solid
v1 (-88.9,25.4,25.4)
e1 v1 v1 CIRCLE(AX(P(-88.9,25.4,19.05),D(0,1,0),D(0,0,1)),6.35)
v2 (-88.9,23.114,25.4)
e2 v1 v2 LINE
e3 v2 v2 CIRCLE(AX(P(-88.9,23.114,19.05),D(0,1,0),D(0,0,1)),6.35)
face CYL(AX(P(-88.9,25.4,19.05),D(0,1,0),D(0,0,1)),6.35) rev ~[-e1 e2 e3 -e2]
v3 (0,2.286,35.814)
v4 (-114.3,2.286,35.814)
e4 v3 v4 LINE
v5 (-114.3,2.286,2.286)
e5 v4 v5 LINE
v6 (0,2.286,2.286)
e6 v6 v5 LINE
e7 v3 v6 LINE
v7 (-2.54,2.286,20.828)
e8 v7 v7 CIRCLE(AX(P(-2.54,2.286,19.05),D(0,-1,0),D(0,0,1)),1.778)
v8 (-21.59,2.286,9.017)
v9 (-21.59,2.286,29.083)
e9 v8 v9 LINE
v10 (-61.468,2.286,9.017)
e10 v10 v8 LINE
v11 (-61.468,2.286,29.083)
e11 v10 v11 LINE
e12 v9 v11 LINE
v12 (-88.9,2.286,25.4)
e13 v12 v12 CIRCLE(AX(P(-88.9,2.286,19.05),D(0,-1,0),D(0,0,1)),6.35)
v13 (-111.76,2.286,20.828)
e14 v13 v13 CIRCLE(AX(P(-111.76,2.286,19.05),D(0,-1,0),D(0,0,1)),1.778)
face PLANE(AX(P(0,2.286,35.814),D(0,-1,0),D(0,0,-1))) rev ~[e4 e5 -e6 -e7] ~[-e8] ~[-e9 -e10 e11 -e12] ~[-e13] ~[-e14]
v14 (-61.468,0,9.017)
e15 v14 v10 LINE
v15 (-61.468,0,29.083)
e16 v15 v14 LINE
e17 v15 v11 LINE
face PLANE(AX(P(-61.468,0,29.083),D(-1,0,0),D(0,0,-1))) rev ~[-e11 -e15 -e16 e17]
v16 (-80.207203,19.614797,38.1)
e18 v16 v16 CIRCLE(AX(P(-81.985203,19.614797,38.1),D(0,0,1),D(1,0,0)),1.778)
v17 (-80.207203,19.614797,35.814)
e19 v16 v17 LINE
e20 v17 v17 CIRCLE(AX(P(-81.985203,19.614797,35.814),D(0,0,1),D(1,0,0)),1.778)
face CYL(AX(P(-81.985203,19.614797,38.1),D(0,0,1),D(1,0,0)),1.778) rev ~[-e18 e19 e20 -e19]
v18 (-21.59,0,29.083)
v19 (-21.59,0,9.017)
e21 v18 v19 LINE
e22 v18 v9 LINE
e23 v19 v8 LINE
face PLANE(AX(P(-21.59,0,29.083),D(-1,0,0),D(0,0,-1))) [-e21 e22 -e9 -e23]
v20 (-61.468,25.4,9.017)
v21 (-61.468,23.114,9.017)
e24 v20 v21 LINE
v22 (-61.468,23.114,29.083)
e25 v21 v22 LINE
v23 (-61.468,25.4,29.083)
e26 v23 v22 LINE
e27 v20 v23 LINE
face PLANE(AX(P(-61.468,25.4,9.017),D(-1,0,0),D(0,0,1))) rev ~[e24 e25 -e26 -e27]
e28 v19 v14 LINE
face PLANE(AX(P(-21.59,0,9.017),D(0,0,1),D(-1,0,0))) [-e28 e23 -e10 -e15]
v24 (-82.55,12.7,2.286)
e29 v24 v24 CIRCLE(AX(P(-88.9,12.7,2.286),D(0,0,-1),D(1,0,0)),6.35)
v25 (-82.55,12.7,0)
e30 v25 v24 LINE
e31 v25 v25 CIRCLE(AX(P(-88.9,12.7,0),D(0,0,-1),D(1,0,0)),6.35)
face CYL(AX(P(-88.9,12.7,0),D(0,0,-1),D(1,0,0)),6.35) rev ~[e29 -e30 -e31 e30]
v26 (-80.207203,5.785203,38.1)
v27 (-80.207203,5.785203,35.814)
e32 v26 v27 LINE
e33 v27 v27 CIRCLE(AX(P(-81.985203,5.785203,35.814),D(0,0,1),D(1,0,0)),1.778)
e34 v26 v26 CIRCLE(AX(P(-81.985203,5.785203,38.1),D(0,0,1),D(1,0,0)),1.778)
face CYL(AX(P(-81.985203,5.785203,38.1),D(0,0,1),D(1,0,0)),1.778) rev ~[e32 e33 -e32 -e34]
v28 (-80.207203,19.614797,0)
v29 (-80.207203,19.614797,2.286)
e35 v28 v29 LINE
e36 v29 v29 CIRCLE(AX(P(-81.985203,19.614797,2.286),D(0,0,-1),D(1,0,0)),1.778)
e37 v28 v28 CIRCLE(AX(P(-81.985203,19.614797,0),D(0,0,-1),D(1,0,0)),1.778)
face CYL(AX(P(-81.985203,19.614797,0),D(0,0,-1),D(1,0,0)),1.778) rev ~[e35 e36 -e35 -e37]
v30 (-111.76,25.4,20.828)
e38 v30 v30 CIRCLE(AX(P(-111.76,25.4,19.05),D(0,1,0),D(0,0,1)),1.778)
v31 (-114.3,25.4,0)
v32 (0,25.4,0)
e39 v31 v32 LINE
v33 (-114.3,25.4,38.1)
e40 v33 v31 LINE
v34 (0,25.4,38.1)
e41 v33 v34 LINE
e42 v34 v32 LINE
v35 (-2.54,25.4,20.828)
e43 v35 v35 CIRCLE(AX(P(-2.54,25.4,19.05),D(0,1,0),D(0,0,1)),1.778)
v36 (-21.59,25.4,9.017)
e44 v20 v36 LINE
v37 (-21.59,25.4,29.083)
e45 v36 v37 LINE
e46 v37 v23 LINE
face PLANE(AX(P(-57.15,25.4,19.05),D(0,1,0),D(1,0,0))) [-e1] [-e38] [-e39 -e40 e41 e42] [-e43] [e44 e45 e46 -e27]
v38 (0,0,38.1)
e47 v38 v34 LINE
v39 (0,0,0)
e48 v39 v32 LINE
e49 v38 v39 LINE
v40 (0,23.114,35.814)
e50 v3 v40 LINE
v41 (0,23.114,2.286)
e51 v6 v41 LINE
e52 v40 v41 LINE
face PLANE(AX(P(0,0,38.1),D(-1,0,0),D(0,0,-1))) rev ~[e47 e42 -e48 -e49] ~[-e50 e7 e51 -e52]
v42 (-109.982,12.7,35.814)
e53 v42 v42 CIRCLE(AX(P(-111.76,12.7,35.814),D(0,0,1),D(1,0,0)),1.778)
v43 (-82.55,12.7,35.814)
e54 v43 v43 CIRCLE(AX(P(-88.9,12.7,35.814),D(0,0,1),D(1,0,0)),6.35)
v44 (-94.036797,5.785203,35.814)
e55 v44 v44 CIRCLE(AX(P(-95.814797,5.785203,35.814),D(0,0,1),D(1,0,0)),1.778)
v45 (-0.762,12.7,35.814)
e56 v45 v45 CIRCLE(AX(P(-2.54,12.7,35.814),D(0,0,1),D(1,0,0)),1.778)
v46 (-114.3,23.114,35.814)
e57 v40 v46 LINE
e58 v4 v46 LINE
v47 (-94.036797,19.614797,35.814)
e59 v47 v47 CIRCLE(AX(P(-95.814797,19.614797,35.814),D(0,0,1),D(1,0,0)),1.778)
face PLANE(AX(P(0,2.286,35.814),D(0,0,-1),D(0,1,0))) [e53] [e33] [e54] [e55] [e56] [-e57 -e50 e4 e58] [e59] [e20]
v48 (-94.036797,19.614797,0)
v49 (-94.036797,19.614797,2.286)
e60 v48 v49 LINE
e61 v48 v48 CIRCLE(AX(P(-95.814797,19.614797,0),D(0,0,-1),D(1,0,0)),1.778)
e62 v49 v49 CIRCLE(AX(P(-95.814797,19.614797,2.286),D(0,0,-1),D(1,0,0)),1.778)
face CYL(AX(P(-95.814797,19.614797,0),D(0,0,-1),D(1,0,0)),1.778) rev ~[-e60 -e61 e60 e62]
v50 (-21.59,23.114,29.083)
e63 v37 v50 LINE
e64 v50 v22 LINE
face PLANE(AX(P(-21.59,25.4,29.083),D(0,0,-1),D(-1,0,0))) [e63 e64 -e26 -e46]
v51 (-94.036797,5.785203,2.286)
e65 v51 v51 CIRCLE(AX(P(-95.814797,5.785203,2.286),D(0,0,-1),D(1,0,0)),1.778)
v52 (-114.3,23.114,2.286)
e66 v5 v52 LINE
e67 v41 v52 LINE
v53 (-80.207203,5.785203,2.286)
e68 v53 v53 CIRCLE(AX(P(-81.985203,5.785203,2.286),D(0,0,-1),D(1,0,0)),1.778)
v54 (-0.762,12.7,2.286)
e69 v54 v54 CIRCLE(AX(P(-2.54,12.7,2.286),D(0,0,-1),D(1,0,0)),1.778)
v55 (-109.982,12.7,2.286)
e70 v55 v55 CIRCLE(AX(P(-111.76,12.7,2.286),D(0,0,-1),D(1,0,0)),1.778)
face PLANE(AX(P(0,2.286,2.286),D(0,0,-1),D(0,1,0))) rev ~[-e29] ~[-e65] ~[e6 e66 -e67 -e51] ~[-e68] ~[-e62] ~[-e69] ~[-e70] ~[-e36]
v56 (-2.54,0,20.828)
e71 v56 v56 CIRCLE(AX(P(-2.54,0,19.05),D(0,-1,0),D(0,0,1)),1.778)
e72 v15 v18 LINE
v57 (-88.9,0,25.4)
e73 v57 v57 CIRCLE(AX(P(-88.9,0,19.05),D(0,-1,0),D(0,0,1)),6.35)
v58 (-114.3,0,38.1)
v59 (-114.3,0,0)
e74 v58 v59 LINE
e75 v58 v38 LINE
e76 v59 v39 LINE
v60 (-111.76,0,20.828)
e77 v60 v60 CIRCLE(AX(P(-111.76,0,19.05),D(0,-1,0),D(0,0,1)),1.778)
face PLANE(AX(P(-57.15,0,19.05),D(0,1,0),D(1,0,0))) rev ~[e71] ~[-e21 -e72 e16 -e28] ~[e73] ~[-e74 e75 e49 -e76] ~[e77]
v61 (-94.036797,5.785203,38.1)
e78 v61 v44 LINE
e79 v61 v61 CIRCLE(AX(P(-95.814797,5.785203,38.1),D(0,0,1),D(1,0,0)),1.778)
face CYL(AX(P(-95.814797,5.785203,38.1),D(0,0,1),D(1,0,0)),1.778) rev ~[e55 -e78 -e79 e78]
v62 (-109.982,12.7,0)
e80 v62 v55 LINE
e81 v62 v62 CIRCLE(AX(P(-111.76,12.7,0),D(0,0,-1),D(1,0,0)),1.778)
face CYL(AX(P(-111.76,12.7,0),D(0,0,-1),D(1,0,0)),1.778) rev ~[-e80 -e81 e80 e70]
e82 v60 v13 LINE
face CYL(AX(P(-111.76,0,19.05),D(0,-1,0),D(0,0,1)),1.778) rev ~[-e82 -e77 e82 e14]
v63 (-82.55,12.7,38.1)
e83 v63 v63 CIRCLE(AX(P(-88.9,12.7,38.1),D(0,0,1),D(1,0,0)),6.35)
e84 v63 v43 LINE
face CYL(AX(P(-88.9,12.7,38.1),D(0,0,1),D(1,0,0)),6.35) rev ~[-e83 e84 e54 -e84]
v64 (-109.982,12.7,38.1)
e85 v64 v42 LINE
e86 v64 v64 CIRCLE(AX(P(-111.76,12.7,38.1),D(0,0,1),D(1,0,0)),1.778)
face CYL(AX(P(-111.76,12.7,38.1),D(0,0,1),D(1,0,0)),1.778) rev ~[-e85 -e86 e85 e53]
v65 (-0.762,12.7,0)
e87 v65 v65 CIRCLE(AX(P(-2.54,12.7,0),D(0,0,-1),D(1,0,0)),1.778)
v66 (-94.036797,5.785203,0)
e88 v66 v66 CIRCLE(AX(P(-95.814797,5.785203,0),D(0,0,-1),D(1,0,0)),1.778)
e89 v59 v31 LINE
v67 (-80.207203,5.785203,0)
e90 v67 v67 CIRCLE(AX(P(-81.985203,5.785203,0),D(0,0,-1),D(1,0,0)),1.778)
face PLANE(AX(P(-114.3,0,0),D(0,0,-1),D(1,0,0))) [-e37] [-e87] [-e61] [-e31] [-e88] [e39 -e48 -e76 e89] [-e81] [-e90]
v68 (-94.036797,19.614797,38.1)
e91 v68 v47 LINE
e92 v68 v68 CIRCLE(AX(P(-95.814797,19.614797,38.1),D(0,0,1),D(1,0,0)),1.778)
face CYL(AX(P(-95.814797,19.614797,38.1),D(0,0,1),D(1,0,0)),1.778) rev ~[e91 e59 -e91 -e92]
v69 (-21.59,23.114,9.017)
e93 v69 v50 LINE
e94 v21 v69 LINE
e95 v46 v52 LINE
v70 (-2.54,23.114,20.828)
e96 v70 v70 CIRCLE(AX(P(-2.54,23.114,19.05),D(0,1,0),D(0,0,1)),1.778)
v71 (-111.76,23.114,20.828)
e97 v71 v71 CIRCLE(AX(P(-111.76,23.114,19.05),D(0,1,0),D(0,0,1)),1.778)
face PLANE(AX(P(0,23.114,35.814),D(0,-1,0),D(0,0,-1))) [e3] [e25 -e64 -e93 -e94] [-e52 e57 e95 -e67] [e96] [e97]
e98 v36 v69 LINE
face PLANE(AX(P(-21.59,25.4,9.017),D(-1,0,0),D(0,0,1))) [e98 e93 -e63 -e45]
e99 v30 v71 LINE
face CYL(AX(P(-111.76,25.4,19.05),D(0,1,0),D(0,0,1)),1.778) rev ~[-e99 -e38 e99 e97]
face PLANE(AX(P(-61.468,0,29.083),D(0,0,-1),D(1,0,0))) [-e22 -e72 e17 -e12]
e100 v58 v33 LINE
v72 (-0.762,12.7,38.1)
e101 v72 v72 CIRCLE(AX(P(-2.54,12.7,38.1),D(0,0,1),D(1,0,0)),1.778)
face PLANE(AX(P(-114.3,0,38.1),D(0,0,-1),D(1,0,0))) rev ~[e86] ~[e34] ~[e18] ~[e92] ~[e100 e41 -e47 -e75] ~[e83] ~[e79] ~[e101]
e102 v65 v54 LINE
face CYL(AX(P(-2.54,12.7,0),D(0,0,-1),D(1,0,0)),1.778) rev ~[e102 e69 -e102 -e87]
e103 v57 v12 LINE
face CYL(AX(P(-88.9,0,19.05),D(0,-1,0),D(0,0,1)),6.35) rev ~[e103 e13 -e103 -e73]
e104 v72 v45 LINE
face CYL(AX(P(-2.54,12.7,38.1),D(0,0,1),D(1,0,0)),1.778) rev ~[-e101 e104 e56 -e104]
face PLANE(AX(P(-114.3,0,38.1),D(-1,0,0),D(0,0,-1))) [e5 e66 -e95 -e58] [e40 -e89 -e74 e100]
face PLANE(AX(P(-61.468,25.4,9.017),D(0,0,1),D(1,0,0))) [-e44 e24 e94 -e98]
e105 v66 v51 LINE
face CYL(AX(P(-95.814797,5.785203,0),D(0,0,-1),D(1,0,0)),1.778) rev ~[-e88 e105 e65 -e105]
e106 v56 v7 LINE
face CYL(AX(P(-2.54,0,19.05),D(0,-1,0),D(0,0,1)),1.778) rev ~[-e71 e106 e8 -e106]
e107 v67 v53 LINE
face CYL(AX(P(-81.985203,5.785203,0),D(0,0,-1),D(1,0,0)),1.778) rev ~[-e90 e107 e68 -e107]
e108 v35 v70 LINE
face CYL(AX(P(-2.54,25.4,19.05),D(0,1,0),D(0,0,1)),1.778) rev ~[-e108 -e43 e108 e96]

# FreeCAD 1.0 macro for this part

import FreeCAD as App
import Part
import Sketcher

V = App.Vector
Q = App.Units.Quantity


def add_polygon(sketch, points):
    """Adds a closed chain of lines whose ends are joined by coincident constraints."""
    first, n = sketch.GeometryCount, len(points)
    for a, b in zip(points, points[1:] + points[:1]):
        sketch.addGeometry(Part.LineSegment(App.Vector(*a, 0), App.Vector(*b, 0)), False)
    for i in range(n):
        sketch.addConstraint(Sketcher.Constraint("Coincident", first + i, 2, first + (i + 1) % n, 1))

doc = App.newDocument("Part")
body = doc.addObject("PartDesign::Body", "Body")

sketch1 = body.newObject("Sketcher::SketchObject", "Sketch")
sketch1.AttachmentSupport = (doc.getObject("XZ_Plane"), [""])
sketch1.MapMode = "FlatFace"
add_polygon(sketch1, [(-114, 0), (-114, 38), (0, 38), (0, 0)])
sketch1.addConstraint(Sketcher.Constraint("Vertical", 0))
sketch1.addConstraint(Sketcher.Constraint("Horizontal", 1))
sketch1.addConstraint(Sketcher.Constraint("Vertical", 2))
sketch1.addConstraint(Sketcher.Constraint("Horizontal", 3))
sketch1.addConstraint(Sketcher.Constraint("Coincident", 2, 2, -1, 1))
sketch1.addConstraint(Sketcher.Constraint("DistanceX", 1, 1, 1, 2, Q("4.5 in")))
sketch1.addConstraint(Sketcher.Constraint("DistanceY", 0, 1, 0, 2, Q("1.5 in")))
pad1 = body.newObject("PartDesign::Pad", "Pad")
pad1.Profile = sketch1
pad1.Length = Q("1 in")
pad1.Reversed = True

sketch2 = body.newObject("Sketcher::SketchObject", "Sketch001")
sketch2.AttachmentSupport = (doc.getObject("YZ_Plane"), [""])
sketch2.MapMode = "FlatFace"
add_polygon(sketch2, [(23, 36), (2, 36), (2, 2), (23, 2)])
sketch2.addConstraint(Sketcher.Constraint("Horizontal", 0))
sketch2.addConstraint(Sketcher.Constraint("Vertical", 1))
sketch2.addConstraint(Sketcher.Constraint("Horizontal", 2))
sketch2.addConstraint(Sketcher.Constraint("Vertical", 3))
sketch2.addConstraint(Sketcher.Constraint("DistanceX", 0, 2, 0, 1, Q("0.82 in")))
sketch2.addConstraint(Sketcher.Constraint("DistanceY", 1, 2, 1, 1, Q("1.32 in")))
sketch2.addConstraint(Sketcher.Constraint("DistanceX", -1, 1, 0, 2, Q("0.09 in")))
sketch2.addConstraint(Sketcher.Constraint("DistanceY", -1, 1, 0, 2, Q("1.41 in")))
pocket1 = body.newObject("PartDesign::Pocket", "Pocket")
pocket1.Profile = sketch2
pocket1.Type = "UpToFirst"

sketch3 = body.newObject("Sketcher::SketchObject", "Sketch002")
sketch3.AttachmentSupport = (doc.getObject("XY_Plane"), [""])
sketch3.MapMode = "FlatFace"
sketch3.AttachmentOffset = App.Placement(V(0, 0, 1.5 * 25.4), App.Rotation())
sketch3.addGeometry(Part.Circle(V(-2.5, 12.7, 0), V(0, 0, 1), 1.8), False)
sketch3.addConstraint(Sketcher.Constraint("Diameter", 0, Q("0.14 in")))
sketch3.addConstraint(Sketcher.Constraint("DistanceX", 0, 3, -1, 1, Q("0.1 in")))
sketch3.addConstraint(Sketcher.Constraint("DistanceY", -1, 1, 0, 3, Q("0.5 in")))
pocket2 = body.newObject("PartDesign::Pocket", "Pocket001")
pocket2.Profile = sketch3
pocket2.Type = "UpToFirst"

sketch4 = body.newObject("Sketcher::SketchObject", "Sketch003")
sketch4.AttachmentSupport = (doc.getObject("XY_Plane"), [""])
sketch4.MapMode = "FlatFace"
sketch4.addGeometry(Part.Circle(V(-2.5, 12.7, 0), V(0, 0, 1), 1.8), False)
sketch4.addConstraint(Sketcher.Constraint("Diameter", 0, Q("0.14 in")))
sketch4.addConstraint(Sketcher.Constraint("DistanceX", 0, 3, -1, 1, Q("0.1 in")))
sketch4.addConstraint(Sketcher.Constraint("DistanceY", -1, 1, 0, 3, Q("0.5 in")))
pocket3 = body.newObject("PartDesign::Pocket", "Pocket002")
pocket3.Profile = sketch4
pocket3.Type = "UpToFirst"
pocket3.Reversed = True

sketch5 = body.newObject("Sketcher::SketchObject", "Sketch004")
sketch5.AttachmentSupport = (doc.getObject("XY_Plane"), [""])
sketch5.MapMode = "FlatFace"
sketch5.AttachmentOffset = App.Placement(V(0, 0, 1.5 * 25.4), App.Rotation())
sketch5.addGeometry(Part.Circle(V(-111.8, 12.7, 0), V(0, 0, 1), 1.8), False)
sketch5.addConstraint(Sketcher.Constraint("Diameter", 0, Q("0.14 in")))
sketch5.addConstraint(Sketcher.Constraint("DistanceX", 0, 3, -1, 1, Q("4.4 in")))
sketch5.addConstraint(Sketcher.Constraint("DistanceY", -1, 1, 0, 3, Q("0.5 in")))
pocket4 = body.newObject("PartDesign::Pocket", "Pocket003")
pocket4.Profile = sketch5
pocket4.Type = "UpToFirst"

sketch6 = body.newObject("Sketcher::SketchObject", "Sketch005")
sketch6.AttachmentSupport = (doc.getObject("XY_Plane"), [""])
sketch6.MapMode = "FlatFace"
sketch6.AttachmentOffset = App.Placement(V(0, 0, 1.5 * 25.4), App.Rotation())
sketch6.addGeometry(Part.Circle(V(-89, 13, 0), V(0, 0, 1), 6), False)
sketch6.addConstraint(Sketcher.Constraint("Diameter", 0, Q("0.5 in")))
sketch6.addConstraint(Sketcher.Constraint("DistanceX", 0, 3, -1, 1, Q("3.5 in")))
sketch6.addConstraint(Sketcher.Constraint("DistanceY", -1, 1, 0, 3, Q("0.5 in")))
pocket5 = body.newObject("PartDesign::Pocket", "Pocket004")
pocket5.Profile = sketch6
pocket5.Type = "UpToFirst"

sketch7 = body.newObject("Sketcher::SketchObject", "Sketch006")
sketch7.AttachmentSupport = (doc.getObject("XY_Plane"), [""])
sketch7.MapMode = "FlatFace"
sketch7.AttachmentOffset = App.Placement(V(0, 0, 1.5 * 25.4), App.Rotation())
sketch7.addGeometry(Part.Circle(V(-95.8, 19.6, 0), V(0, 0, 1), 1.8), False)
sketch7.addConstraint(Sketcher.Constraint("Diameter", 0, Q("0.14 in")))
sketch7.addConstraint(Sketcher.Constraint("DistanceX", 0, 3, -1, 1, Q("95.814797 mm")))
sketch7.addConstraint(Sketcher.Constraint("DistanceY", -1, 1, 0, 3, Q("19.614797 mm")))
pocket6 = body.newObject("PartDesign::Pocket", "Pocket005")
pocket6.Profile = sketch7
pocket6.Type = "UpToFirst"

sketch8 = body.newObject("Sketcher::SketchObject", "Sketch007")
sketch8.AttachmentSupport = (doc.getObject("XY_Plane"), [""])
sketch8.MapMode = "FlatFace"
sketch8.AttachmentOffset = App.Placement(V(0, 0, 1.5 * 25.4), App.Rotation())
sketch8.addGeometry(Part.Circle(V(-82, 19.6, 0), V(0, 0, 1), 1.8), False)
sketch8.addConstraint(Sketcher.Constraint("Diameter", 0, Q("0.14 in")))
sketch8.addConstraint(Sketcher.Constraint("DistanceX", 0, 3, -1, 1, Q("81.985203 mm")))
sketch8.addConstraint(Sketcher.Constraint("DistanceY", -1, 1, 0, 3, Q("19.614797 mm")))
pocket7 = body.newObject("PartDesign::Pocket", "Pocket006")
pocket7.Profile = sketch8
pocket7.Type = "UpToFirst"

sketch9 = body.newObject("Sketcher::SketchObject", "Sketch008")
sketch9.AttachmentSupport = (doc.getObject("XY_Plane"), [""])
sketch9.MapMode = "FlatFace"
sketch9.AttachmentOffset = App.Placement(V(0, 0, 1.5 * 25.4), App.Rotation())
sketch9.addGeometry(Part.Circle(V(-95.8, 5.8, 0), V(0, 0, 1), 1.8), False)
sketch9.addConstraint(Sketcher.Constraint("Diameter", 0, Q("0.14 in")))
sketch9.addConstraint(Sketcher.Constraint("DistanceX", 0, 3, -1, 1, Q("95.814797 mm")))
sketch9.addConstraint(Sketcher.Constraint("DistanceY", -1, 1, 0, 3, Q("5.785203 mm")))
pocket8 = body.newObject("PartDesign::Pocket", "Pocket007")
pocket8.Profile = sketch9
pocket8.Type = "UpToFirst"

sketch10 = body.newObject("Sketcher::SketchObject", "Sketch009")
sketch10.AttachmentSupport = (doc.getObject("XY_Plane"), [""])
sketch10.MapMode = "FlatFace"
sketch10.AttachmentOffset = App.Placement(V(0, 0, 1.5 * 25.4), App.Rotation())
sketch10.addGeometry(Part.Circle(V(-82, 5.8, 0), V(0, 0, 1), 1.8), False)
sketch10.addConstraint(Sketcher.Constraint("Diameter", 0, Q("0.14 in")))
sketch10.addConstraint(Sketcher.Constraint("DistanceX", 0, 3, -1, 1, Q("81.985203 mm")))
sketch10.addConstraint(Sketcher.Constraint("DistanceY", -1, 1, 0, 3, Q("5.785203 mm")))
pocket9 = body.newObject("PartDesign::Pocket", "Pocket008")
pocket9.Profile = sketch10
pocket9.Type = "UpToFirst"

sketch11 = body.newObject("Sketcher::SketchObject", "Sketch010")
sketch11.AttachmentSupport = (doc.getObject("XY_Plane"), [""])
sketch11.MapMode = "FlatFace"
sketch11.addGeometry(Part.Circle(V(-111.8, 12.7, 0), V(0, 0, 1), 1.8), False)
sketch11.addConstraint(Sketcher.Constraint("Diameter", 0, Q("0.14 in")))
sketch11.addConstraint(Sketcher.Constraint("DistanceX", 0, 3, -1, 1, Q("4.4 in")))
sketch11.addConstraint(Sketcher.Constraint("DistanceY", -1, 1, 0, 3, Q("0.5 in")))
pocket10 = body.newObject("PartDesign::Pocket", "Pocket009")
pocket10.Profile = sketch11
pocket10.Type = "UpToFirst"
pocket10.Reversed = True

sketch12 = body.newObject("Sketcher::SketchObject", "Sketch011")
sketch12.AttachmentSupport = (doc.getObject("XY_Plane"), [""])
sketch12.MapMode = "FlatFace"
sketch12.addGeometry(Part.Circle(V(-89, 13, 0), V(0, 0, 1), 6), False)
sketch12.addConstraint(Sketcher.Constraint("Diameter", 0, Q("0.5 in")))
sketch12.addConstraint(Sketcher.Constraint("DistanceX", 0, 3, -1, 1, Q("3.5 in")))
sketch12.addConstraint(Sketcher.Constraint("DistanceY", -1, 1, 0, 3, Q("0.5 in")))
pocket11 = body.newObject("PartDesign::Pocket", "Pocket010")
pocket11.Profile = sketch12
pocket11.Type = "UpToFirst"
pocket11.Reversed = True

sketch13 = body.newObject("Sketcher::SketchObject", "Sketch012")
sketch13.AttachmentSupport = (doc.getObject("XY_Plane"), [""])
sketch13.MapMode = "FlatFace"
sketch13.addGeometry(Part.Circle(V(-82, 19.6, 0), V(0, 0, 1), 1.8), False)
sketch13.addConstraint(Sketcher.Constraint("Diameter", 0, Q("0.14 in")))
sketch13.addConstraint(Sketcher.Constraint("DistanceX", 0, 3, -1, 1, Q("81.985203 mm")))
sketch13.addConstraint(Sketcher.Constraint("DistanceY", -1, 1, 0, 3, Q("19.614797 mm")))
pocket12 = body.newObject("PartDesign::Pocket", "Pocket011")
pocket12.Profile = sketch13
pocket12.Type = "UpToFirst"
pocket12.Reversed = True

sketch14 = body.newObject("Sketcher::SketchObject", "Sketch013")
sketch14.AttachmentSupport = (doc.getObject("XY_Plane"), [""])
sketch14.MapMode = "FlatFace"
sketch14.addGeometry(Part.Circle(V(-95.8, 19.6, 0), V(0, 0, 1), 1.8), False)
sketch14.addConstraint(Sketcher.Constraint("Diameter", 0, Q("0.14 in")))
sketch14.addConstraint(Sketcher.Constraint("DistanceX", 0, 3, -1, 1, Q("95.814797 mm")))
sketch14.addConstraint(Sketcher.Constraint("DistanceY", -1, 1, 0, 3, Q("19.614797 mm")))
pocket13 = body.newObject("PartDesign::Pocket", "Pocket012")
pocket13.Profile = sketch14
pocket13.Type = "UpToFirst"
pocket13.Reversed = True

sketch15 = body.newObject("Sketcher::SketchObject", "Sketch014")
sketch15.AttachmentSupport = (doc.getObject("XY_Plane"), [""])
sketch15.MapMode = "FlatFace"
sketch15.addGeometry(Part.Circle(V(-95.8, 5.8, 0), V(0, 0, 1), 1.8), False)
sketch15.addConstraint(Sketcher.Constraint("Diameter", 0, Q("0.14 in")))
sketch15.addConstraint(Sketcher.Constraint("DistanceX", 0, 3, -1, 1, Q("95.814797 mm")))
sketch15.addConstraint(Sketcher.Constraint("DistanceY", -1, 1, 0, 3, Q("5.785203 mm")))
pocket14 = body.newObject("PartDesign::Pocket", "Pocket013")
pocket14.Profile = sketch15
pocket14.Type = "UpToFirst"
pocket14.Reversed = True

sketch16 = body.newObject("Sketcher::SketchObject", "Sketch015")
sketch16.AttachmentSupport = (doc.getObject("XY_Plane"), [""])
sketch16.MapMode = "FlatFace"
sketch16.addGeometry(Part.Circle(V(-82, 5.8, 0), V(0, 0, 1), 1.8), False)
sketch16.addConstraint(Sketcher.Constraint("Diameter", 0, Q("0.14 in")))
sketch16.addConstraint(Sketcher.Constraint("DistanceX", 0, 3, -1, 1, Q("81.985203 mm")))
sketch16.addConstraint(Sketcher.Constraint("DistanceY", -1, 1, 0, 3, Q("5.785203 mm")))
pocket15 = body.newObject("PartDesign::Pocket", "Pocket014")
pocket15.Profile = sketch16
pocket15.Type = "UpToFirst"
pocket15.Reversed = True

sketch17 = body.newObject("Sketcher::SketchObject", "Sketch016")
sketch17.AttachmentSupport = (doc.getObject("XZ_Plane"), [""])
sketch17.MapMode = "FlatFace"
sketch17.AttachmentOffset = App.Placement(V(0, 0, -1 * 25.4), App.Rotation())
sketch17.addGeometry(Part.Circle(V(-111.8, 19.1, 0), V(0, 0, 1), 1.8), False)
sketch17.addConstraint(Sketcher.Constraint("Diameter", 0, Q("0.14 in")))
sketch17.addConstraint(Sketcher.Constraint("DistanceX", 0, 3, -1, 1, Q("4.4 in")))
sketch17.addConstraint(Sketcher.Constraint("DistanceY", -1, 1, 0, 3, Q("0.75 in")))
pocket16 = body.newObject("PartDesign::Pocket", "Pocket015")
pocket16.Profile = sketch17
pocket16.Type = "UpToFirst"
pocket16.Reversed = True

sketch18 = body.newObject("Sketcher::SketchObject", "Sketch017")
sketch18.AttachmentSupport = (doc.getObject("XZ_Plane"), [""])
sketch18.MapMode = "FlatFace"
sketch18.AttachmentOffset = App.Placement(V(0, 0, -1 * 25.4), App.Rotation())
sketch18.addGeometry(Part.Circle(V(-89, 19, 0), V(0, 0, 1), 6), False)
sketch18.addConstraint(Sketcher.Constraint("Diameter", 0, Q("0.5 in")))
sketch18.addConstraint(Sketcher.Constraint("DistanceX", 0, 3, -1, 1, Q("3.5 in")))
sketch18.addConstraint(Sketcher.Constraint("DistanceY", -1, 1, 0, 3, Q("0.75 in")))
pocket17 = body.newObject("PartDesign::Pocket", "Pocket016")
pocket17.Profile = sketch18
pocket17.Type = "UpToFirst"
pocket17.Reversed = True

sketch19 = body.newObject("Sketcher::SketchObject", "Sketch018")
sketch19.AttachmentSupport = (doc.getObject("XZ_Plane"), [""])
sketch19.MapMode = "FlatFace"
sketch19.AttachmentOffset = App.Placement(V(0, 0, -1 * 25.4), App.Rotation())
add_polygon(sketch19, [(-61, 9), (-61, 29), (-22, 29), (-22, 9)])
sketch19.addConstraint(Sketcher.Constraint("Vertical", 0))
sketch19.addConstraint(Sketcher.Constraint("Horizontal", 1))
sketch19.addConstraint(Sketcher.Constraint("Vertical", 2))
sketch19.addConstraint(Sketcher.Constraint("Horizontal", 3))
sketch19.addConstraint(Sketcher.Constraint("DistanceX", 1, 1, 1, 2, Q("1.57 in")))
sketch19.addConstraint(Sketcher.Constraint("DistanceY", 0, 1, 0, 2, Q("0.79 in")))
sketch19.addConstraint(Sketcher.Constraint("DistanceX", 0, 2, -1, 1, Q("2.42 in")))
sketch19.addConstraint(Sketcher.Constraint("DistanceY", -1, 1, 0, 2, Q("1.145 in")))
pocket18 = body.newObject("PartDesign::Pocket", "Pocket017")
pocket18.Profile = sketch19
pocket18.Type = "UpToFirst"
pocket18.Reversed = True

sketch20 = body.newObject("Sketcher::SketchObject", "Sketch019")
sketch20.AttachmentSupport = (doc.getObject("XZ_Plane"), [""])
sketch20.MapMode = "FlatFace"
sketch20.addGeometry(Part.Circle(V(-111.8, 19.1, 0), V(0, 0, 1), 1.8), False)
sketch20.addConstraint(Sketcher.Constraint("Diameter", 0, Q("0.14 in")))
sketch20.addConstraint(Sketcher.Constraint("DistanceX", 0, 3, -1, 1, Q("4.4 in")))
sketch20.addConstraint(Sketcher.Constraint("DistanceY", -1, 1, 0, 3, Q("0.75 in")))
pocket19 = body.newObject("PartDesign::Pocket", "Pocket018")
pocket19.Profile = sketch20
pocket19.Type = "UpToFirst"

sketch21 = body.newObject("Sketcher::SketchObject", "Sketch020")
sketch21.AttachmentSupport = (doc.getObject("XZ_Plane"), [""])
sketch21.MapMode = "FlatFace"
sketch21.addGeometry(Part.Circle(V(-89, 19, 0), V(0, 0, 1), 6), False)
sketch21.addConstraint(Sketcher.Constraint("Diameter", 0, Q("0.5 in")))
sketch21.addConstraint(Sketcher.Constraint("DistanceX", 0, 3, -1, 1, Q("3.5 in")))
sketch21.addConstraint(Sketcher.Constraint("DistanceY", -1, 1, 0, 3, Q("0.75 in")))
pocket20 = body.newObject("PartDesign::Pocket", "Pocket019")
pocket20.Profile = sketch21
pocket20.Type = "UpToFirst"

sketch22 = body.newObject("Sketcher::SketchObject", "Sketch021")
sketch22.AttachmentSupport = (doc.getObject("XZ_Plane"), [""])
sketch22.MapMode = "FlatFace"
add_polygon(sketch22, [(-61, 29), (-61, 9), (-22, 9), (-22, 29)])
sketch22.addConstraint(Sketcher.Constraint("Vertical", 0))
sketch22.addConstraint(Sketcher.Constraint("Horizontal", 1))
sketch22.addConstraint(Sketcher.Constraint("Vertical", 2))
sketch22.addConstraint(Sketcher.Constraint("Horizontal", 3))
sketch22.addConstraint(Sketcher.Constraint("DistanceX", 1, 1, 1, 2, Q("1.57 in")))
sketch22.addConstraint(Sketcher.Constraint("DistanceY", 0, 2, 0, 1, Q("0.79 in")))
sketch22.addConstraint(Sketcher.Constraint("DistanceX", 0, 2, -1, 1, Q("2.42 in")))
sketch22.addConstraint(Sketcher.Constraint("DistanceY", -1, 1, 0, 2, Q("0.355 in")))
pocket21 = body.newObject("PartDesign::Pocket", "Pocket020")
pocket21.Profile = sketch22
pocket21.Type = "UpToFirst"

sketch23 = body.newObject("Sketcher::SketchObject", "Sketch022")
sketch23.AttachmentSupport = (doc.getObject("XZ_Plane"), [""])
sketch23.MapMode = "FlatFace"
sketch23.AttachmentOffset = App.Placement(V(0, 0, -1 * 25.4), App.Rotation())
sketch23.addGeometry(Part.Circle(V(-2.5, 19.1, 0), V(0, 0, 1), 1.8), False)
sketch23.addConstraint(Sketcher.Constraint("Diameter", 0, Q("0.14 in")))
sketch23.addConstraint(Sketcher.Constraint("DistanceX", 0, 3, -1, 1, Q("0.1 in")))
sketch23.addConstraint(Sketcher.Constraint("DistanceY", -1, 1, 0, 3, Q("0.75 in")))
pocket22 = body.newObject("PartDesign::Pocket", "Pocket021")
pocket22.Profile = sketch23
pocket22.Type = "UpToFirst"
pocket22.Reversed = True

sketch24 = body.newObject("Sketcher::SketchObject", "Sketch023")
sketch24.AttachmentSupport = (doc.getObject("XZ_Plane"), [""])
sketch24.MapMode = "FlatFace"
sketch24.addGeometry(Part.Circle(V(-2.5, 19.1, 0), V(0, 0, 1), 1.8), False)
sketch24.addConstraint(Sketcher.Constraint("Diameter", 0, Q("0.14 in")))
sketch24.addConstraint(Sketcher.Constraint("DistanceX", 0, 3, -1, 1, Q("0.1 in")))
sketch24.addConstraint(Sketcher.Constraint("DistanceY", -1, 1, 0, 3, Q("0.75 in")))
pocket23 = body.newObject("PartDesign::Pocket", "Pocket022")
pocket23.Profile = sketch24
pocket23.Type = "UpToFirst"

doc.recompute()
